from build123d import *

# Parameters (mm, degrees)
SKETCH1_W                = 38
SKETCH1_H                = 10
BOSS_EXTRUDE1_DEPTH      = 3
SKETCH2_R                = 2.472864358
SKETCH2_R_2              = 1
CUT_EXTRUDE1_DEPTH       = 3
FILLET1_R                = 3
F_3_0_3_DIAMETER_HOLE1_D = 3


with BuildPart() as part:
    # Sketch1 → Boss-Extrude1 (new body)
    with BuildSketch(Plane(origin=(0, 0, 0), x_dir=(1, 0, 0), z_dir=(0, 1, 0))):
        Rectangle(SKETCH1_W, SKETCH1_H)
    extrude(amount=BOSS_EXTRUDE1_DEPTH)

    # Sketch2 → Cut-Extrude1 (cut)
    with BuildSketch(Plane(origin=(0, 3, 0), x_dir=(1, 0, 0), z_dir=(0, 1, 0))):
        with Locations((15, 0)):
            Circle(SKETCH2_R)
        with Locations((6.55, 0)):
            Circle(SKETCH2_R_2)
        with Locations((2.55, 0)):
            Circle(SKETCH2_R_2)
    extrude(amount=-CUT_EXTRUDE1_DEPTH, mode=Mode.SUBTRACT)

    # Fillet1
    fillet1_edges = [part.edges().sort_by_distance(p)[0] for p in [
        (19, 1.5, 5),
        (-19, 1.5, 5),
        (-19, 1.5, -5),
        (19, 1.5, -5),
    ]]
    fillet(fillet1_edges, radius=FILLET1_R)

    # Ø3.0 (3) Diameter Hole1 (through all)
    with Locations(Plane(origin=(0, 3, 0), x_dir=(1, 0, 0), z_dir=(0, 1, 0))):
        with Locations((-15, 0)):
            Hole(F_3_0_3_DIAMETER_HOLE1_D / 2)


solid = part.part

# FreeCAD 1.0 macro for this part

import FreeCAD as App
import Part
import Sketcher


def edges_at(feature, points):
    """Names of the edges that pass closest to the given points."""
    edges = feature.Shape.Edges
    near = lambda p: min(range(len(edges)), key=lambda i: edges[i].distToShape(Part.Vertex(*p))[0])
    return sorted({f"Edge{near(p) + 1}" for p in points})

doc = App.newDocument("Part")
params = doc.addObject("Spreadsheet::Sheet", "Params")
for row, (alias, value) in enumerate([
    ("sketch1_width", "38 mm"),
    ("sketch1_height", "10 mm"),
    ("pad1_length", "3 mm"),
    ("sketch2_diameter", "2 mm"),
    ("pocket1_length", "3 mm"),
    ("fillet_radius", "3 mm"),
    ("sketch3_diameter", "3 mm"),
    ("hole_diameter", "3 mm"),
], start=1):
    params.set(f"A{row}", alias)
    params.set(f"B{row}", "=" + value)
    params.setAlias(f"B{row}", alias)

body = doc.addObject("PartDesign::Body", "Body")

# Sketch on XZ plane
sketch1 = body.newObject("Sketcher::SketchObject", "Sketch")
sketch1.AttachmentSupport = (doc.getObject("XZ_Plane"), [""])
sketch1.MapMode = "FlatFace"
sketch1.addGeometry([
    Part.LineSegment(App.Vector(-19, -5, 0), App.Vector(-19, 5, 0)),
    Part.LineSegment(App.Vector(-19, 5, 0), App.Vector(19, 5, 0)),
    Part.LineSegment(App.Vector(19, 5, 0), App.Vector(19, -5, 0)),
    Part.LineSegment(App.Vector(19, -5, 0), App.Vector(-19, -5, 0)),
], False)
sketch1.addConstraint([
    Sketcher.Constraint("Coincident", 0, 2, 1, 1),
    Sketcher.Constraint("Coincident", 1, 2, 2, 1),
    Sketcher.Constraint("Coincident", 2, 2, 3, 1),
    Sketcher.Constraint("Coincident", 3, 2, 0, 1),
    Sketcher.Constraint("Vertical", 0),
    Sketcher.Constraint("Horizontal", 1),
    Sketcher.Constraint("Vertical", 2),
    Sketcher.Constraint("Horizontal", 3),
    Sketcher.Constraint("Symmetric", 0, 2, 2, 2, -1, 1),
    Sketcher.Constraint("DistanceX", 1, 1, 1, 2, 38.0),
    Sketcher.Constraint("DistanceY", 0, 1, 0, 2, 10.0),
])
sketch1.setExpression("Constraints[9]", "Params.sketch1_width")
sketch1.setExpression("Constraints[10]", "Params.sketch1_height")
pad1 = body.newObject("PartDesign::Pad", "Pad")
pad1.Profile = sketch1
pad1.setExpression("Length", "Params.pad1_length")
pad1.Reversed = True

# Sketch on XZ plane
sketch2 = body.newObject("Sketcher::SketchObject", "Sketch001")
sketch2.AttachmentSupport = (doc.getObject("XZ_Plane"), [""])
sketch2.MapMode = "FlatFace"
sketch2.AttachmentOffset = App.Placement(App.Vector(0, 0, -3), App.Rotation())
sketch2.addGeometry([
    Part.Circle(App.Vector(15, 0, 0), App.Vector(0, 0, 1), 2.5),
    Part.Circle(App.Vector(6.5, 0, 0), App.Vector(0, 0, 1), 1),
    Part.Circle(App.Vector(2.5, 0, 0), App.Vector(0, 0, 1), 1),
], False)
sketch2.addConstraint([
    Sketcher.Constraint("Equal", 1, 2),
    Sketcher.Constraint("PointOnObject", 0, 3, -1),
    Sketcher.Constraint("PointOnObject", 1, 3, -1),
    Sketcher.Constraint("PointOnObject", 2, 3, -1),
    Sketcher.Constraint("Diameter", 1, 2.0),
    Sketcher.Constraint("DistanceX", -1, 1, 0, 3, 15.0),
    Sketcher.Constraint("DistanceX", 2, 3, 1, 3, 4.0),
    Sketcher.Constraint("Diameter", 0, 4.945729),
    Sketcher.Constraint("DistanceX", -1, 1, 1, 3, 6.55),
])
sketch2.setExpression("Constraints[4]", "Params.sketch2_diameter")
pocket1 = body.newObject("PartDesign::Pocket", "Pocket")
pocket1.Profile = sketch2
pocket1.setExpression("Length", "Params.pocket1_length")
pocket1.Reversed = True
doc.recompute()

fillet = body.newObject("PartDesign::Fillet", "Fillet")
fillet.Base = (pocket1, edges_at(pocket1, [
    (19, 1.5, 5),
    (-19, 1.5, 5),
    (-19, 1.5, -5),
    (19, 1.5, -5),
]))
fillet.setExpression("Radius", "Params.fillet_radius")

# Sketch on XZ plane
sketch3 = body.newObject("Sketcher::SketchObject", "Sketch002")
sketch3.AttachmentSupport = (doc.getObject("XZ_Plane"), [""])
sketch3.MapMode = "FlatFace"
sketch3.AttachmentOffset = App.Placement(App.Vector(0, 0, -3), App.Rotation())
sketch3.addGeometry(Part.Circle(App.Vector(-15, 0, 0), App.Vector(0, 0, 1), 1.5), False)
sketch3.addConstraint([
    Sketcher.Constraint("PointOnObject", 0, 3, -1),
    Sketcher.Constraint("Diameter", 0, 3.0),
    Sketcher.Constraint("DistanceX", 0, 3, -1, 1, 15.0),
])
sketch3.setExpression("Constraints[1]", "Params.sketch3_diameter")
doc.recompute()
hole = body.newObject("PartDesign::Hole", "Hole")
hole.Profile = sketch3
hole.ThreadType = "None"
hole.setExpression("Diameter", "Params.hole_diameter")
hole.DepthType = "ThroughAll"
hole.Reversed = True

doc.recompute()
